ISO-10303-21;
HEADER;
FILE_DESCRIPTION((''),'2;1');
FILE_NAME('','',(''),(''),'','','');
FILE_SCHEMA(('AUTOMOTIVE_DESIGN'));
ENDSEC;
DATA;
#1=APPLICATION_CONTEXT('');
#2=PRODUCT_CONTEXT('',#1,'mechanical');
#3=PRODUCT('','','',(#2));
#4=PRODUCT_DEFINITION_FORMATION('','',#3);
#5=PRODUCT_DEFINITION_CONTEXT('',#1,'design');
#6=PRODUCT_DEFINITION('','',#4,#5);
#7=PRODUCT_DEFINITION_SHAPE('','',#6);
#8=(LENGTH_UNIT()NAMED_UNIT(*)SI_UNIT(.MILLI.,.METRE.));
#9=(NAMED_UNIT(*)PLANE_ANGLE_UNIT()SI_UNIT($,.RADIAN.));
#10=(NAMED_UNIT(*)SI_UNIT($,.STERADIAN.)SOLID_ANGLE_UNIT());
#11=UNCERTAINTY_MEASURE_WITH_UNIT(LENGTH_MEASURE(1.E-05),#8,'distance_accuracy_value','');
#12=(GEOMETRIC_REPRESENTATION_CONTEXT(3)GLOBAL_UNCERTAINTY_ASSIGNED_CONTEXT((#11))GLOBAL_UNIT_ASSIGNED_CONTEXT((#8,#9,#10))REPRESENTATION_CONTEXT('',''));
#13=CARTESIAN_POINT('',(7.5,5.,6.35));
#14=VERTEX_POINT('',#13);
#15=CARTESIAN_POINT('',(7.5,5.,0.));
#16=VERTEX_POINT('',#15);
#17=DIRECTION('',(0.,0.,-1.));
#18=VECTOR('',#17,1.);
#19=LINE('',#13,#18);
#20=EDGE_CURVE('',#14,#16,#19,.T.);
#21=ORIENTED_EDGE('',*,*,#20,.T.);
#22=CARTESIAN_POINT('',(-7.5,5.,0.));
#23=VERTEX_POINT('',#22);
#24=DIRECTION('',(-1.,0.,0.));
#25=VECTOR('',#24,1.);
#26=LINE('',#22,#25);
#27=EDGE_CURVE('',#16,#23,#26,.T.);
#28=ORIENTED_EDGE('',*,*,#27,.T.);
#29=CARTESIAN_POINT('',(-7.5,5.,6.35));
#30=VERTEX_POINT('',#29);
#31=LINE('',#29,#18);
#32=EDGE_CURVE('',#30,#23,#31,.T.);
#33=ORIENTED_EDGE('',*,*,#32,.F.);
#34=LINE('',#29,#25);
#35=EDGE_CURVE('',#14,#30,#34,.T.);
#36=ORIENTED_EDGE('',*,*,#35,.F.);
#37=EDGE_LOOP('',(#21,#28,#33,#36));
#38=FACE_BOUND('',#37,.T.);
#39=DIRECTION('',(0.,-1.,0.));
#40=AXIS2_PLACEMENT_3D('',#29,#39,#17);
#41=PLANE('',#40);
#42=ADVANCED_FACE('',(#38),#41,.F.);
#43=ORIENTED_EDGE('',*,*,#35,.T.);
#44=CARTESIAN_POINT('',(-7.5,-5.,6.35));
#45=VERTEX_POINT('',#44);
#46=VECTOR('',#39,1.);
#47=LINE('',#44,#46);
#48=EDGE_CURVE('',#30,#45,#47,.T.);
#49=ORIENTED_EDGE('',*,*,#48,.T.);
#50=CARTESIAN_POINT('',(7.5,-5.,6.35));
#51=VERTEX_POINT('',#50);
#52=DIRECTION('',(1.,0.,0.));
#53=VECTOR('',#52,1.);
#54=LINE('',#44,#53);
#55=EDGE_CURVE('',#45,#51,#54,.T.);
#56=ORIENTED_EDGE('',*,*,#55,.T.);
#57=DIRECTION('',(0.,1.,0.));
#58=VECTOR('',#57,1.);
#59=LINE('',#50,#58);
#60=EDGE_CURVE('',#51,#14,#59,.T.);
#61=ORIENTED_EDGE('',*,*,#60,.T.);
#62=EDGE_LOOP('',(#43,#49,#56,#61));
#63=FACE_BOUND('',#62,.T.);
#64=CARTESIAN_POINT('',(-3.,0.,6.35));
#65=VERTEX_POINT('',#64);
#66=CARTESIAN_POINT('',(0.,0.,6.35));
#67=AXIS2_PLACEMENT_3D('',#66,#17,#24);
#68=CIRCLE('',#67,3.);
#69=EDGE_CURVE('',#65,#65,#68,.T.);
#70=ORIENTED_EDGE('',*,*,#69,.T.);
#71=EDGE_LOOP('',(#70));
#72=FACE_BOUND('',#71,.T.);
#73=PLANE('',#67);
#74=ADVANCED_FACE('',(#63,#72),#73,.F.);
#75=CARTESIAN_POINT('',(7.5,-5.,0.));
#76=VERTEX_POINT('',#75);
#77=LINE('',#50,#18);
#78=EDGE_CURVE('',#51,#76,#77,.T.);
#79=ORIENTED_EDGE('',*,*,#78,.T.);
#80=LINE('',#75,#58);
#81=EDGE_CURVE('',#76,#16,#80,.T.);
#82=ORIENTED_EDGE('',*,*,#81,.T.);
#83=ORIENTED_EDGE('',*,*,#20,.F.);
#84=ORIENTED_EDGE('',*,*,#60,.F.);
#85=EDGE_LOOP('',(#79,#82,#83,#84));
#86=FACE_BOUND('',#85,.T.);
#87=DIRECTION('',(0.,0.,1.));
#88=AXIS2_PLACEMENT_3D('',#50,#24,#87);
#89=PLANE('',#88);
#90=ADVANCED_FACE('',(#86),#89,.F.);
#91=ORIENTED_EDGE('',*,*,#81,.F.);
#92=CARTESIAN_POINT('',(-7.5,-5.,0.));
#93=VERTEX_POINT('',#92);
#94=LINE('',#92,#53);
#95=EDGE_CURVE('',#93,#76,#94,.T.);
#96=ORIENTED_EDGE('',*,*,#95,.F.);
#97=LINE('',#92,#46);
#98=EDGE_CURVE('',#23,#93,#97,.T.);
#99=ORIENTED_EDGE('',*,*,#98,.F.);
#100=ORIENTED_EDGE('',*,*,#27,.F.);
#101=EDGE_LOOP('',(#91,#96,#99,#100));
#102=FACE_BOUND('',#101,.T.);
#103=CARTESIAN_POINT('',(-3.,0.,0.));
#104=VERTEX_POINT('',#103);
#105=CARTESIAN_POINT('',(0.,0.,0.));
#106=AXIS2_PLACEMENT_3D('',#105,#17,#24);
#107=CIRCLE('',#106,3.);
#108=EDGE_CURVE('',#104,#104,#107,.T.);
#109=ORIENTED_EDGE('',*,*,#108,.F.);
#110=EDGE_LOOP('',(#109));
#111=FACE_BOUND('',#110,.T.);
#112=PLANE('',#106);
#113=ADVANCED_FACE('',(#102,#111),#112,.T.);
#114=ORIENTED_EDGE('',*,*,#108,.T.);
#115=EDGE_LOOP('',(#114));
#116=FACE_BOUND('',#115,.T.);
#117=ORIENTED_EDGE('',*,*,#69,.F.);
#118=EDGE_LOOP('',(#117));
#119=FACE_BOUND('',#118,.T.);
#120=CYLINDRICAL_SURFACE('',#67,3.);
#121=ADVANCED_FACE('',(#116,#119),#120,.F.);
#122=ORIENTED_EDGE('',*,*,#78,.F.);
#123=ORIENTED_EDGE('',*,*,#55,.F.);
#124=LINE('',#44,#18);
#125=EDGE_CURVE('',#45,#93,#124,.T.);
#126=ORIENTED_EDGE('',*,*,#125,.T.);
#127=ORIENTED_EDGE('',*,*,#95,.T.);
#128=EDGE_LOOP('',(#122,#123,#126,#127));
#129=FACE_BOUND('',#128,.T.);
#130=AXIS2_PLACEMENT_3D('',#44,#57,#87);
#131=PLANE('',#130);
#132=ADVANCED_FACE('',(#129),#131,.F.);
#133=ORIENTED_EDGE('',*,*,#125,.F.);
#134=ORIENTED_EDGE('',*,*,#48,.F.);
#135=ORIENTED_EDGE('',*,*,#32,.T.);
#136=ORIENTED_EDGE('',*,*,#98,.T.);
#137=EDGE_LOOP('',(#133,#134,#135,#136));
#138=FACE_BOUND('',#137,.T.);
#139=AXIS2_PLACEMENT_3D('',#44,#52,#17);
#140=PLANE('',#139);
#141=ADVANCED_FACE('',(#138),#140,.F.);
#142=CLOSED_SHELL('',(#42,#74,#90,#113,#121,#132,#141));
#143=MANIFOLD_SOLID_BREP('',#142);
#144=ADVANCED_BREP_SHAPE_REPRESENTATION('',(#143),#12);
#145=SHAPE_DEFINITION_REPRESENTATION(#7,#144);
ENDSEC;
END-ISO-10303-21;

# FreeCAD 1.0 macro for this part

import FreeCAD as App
import Part
import Sketcher

V = App.Vector


def add_polygon(sketch, points):
    """Adds a closed chain of lines whose ends are joined by coincident constraints."""
    first, n = sketch.GeometryCount, len(points)
    for a, b in zip(points, points[1:] + points[:1]):
        sketch.addGeometry(Part.LineSegment(App.Vector(*a, 0), App.Vector(*b, 0)), False)
    for i in range(n):
        sketch.addConstraint(Sketcher.Constraint("Coincident", first + i, 2, first + (i + 1) % n, 1))

doc = App.newDocument("Part")
body = doc.addObject("PartDesign::Body", "Body")

sketch1 = body.newObject("Sketcher::SketchObject", "Sketch")
sketch1.AttachmentSupport = (doc.getObject("XY_Plane"), [""])
sketch1.MapMode = "FlatFace"
add_polygon(sketch1, [(-7.5, 5), (-7.5, -5), (7.5, -5), (7.5, 5)])
sketch1.addConstraint([
    Sketcher.Constraint("Vertical", 0),
    Sketcher.Constraint("Horizontal", 1),
    Sketcher.Constraint("Vertical", 2),
    Sketcher.Constraint("Horizontal", 3),
    Sketcher.Constraint("Symmetric", 0, 2, 2, 2, -1, 1),
    Sketcher.Constraint("DistanceX", 1, 1, 1, 2, 15.0),
    Sketcher.Constraint("DistanceY", 0, 2, 0, 1, 10.0),
])
pad1 = body.newObject("PartDesign::Pad", "Pad")
pad1.Profile = sketch1
pad1.Length = 6.35

sketch2 = body.newObject("Sketcher::SketchObject", "Sketch001")
sketch2.AttachmentSupport = (doc.getObject("XY_Plane"), [""])
sketch2.MapMode = "FlatFace"
sketch2.addGeometry(Part.Circle(V(0, 0, 0), V(0, 0, 1), 3), False)
sketch2.addConstraint([
    Sketcher.Constraint("Coincident", 0, 3, -1, 1),
    Sketcher.Constraint("Diameter", 0, 6.0),
])
pocket1 = body.newObject("PartDesign::Pocket", "Pocket")
pocket1.Profile = sketch2
pocket1.Type = "ThroughAll"
pocket1.Reversed = True

doc.recompute()
